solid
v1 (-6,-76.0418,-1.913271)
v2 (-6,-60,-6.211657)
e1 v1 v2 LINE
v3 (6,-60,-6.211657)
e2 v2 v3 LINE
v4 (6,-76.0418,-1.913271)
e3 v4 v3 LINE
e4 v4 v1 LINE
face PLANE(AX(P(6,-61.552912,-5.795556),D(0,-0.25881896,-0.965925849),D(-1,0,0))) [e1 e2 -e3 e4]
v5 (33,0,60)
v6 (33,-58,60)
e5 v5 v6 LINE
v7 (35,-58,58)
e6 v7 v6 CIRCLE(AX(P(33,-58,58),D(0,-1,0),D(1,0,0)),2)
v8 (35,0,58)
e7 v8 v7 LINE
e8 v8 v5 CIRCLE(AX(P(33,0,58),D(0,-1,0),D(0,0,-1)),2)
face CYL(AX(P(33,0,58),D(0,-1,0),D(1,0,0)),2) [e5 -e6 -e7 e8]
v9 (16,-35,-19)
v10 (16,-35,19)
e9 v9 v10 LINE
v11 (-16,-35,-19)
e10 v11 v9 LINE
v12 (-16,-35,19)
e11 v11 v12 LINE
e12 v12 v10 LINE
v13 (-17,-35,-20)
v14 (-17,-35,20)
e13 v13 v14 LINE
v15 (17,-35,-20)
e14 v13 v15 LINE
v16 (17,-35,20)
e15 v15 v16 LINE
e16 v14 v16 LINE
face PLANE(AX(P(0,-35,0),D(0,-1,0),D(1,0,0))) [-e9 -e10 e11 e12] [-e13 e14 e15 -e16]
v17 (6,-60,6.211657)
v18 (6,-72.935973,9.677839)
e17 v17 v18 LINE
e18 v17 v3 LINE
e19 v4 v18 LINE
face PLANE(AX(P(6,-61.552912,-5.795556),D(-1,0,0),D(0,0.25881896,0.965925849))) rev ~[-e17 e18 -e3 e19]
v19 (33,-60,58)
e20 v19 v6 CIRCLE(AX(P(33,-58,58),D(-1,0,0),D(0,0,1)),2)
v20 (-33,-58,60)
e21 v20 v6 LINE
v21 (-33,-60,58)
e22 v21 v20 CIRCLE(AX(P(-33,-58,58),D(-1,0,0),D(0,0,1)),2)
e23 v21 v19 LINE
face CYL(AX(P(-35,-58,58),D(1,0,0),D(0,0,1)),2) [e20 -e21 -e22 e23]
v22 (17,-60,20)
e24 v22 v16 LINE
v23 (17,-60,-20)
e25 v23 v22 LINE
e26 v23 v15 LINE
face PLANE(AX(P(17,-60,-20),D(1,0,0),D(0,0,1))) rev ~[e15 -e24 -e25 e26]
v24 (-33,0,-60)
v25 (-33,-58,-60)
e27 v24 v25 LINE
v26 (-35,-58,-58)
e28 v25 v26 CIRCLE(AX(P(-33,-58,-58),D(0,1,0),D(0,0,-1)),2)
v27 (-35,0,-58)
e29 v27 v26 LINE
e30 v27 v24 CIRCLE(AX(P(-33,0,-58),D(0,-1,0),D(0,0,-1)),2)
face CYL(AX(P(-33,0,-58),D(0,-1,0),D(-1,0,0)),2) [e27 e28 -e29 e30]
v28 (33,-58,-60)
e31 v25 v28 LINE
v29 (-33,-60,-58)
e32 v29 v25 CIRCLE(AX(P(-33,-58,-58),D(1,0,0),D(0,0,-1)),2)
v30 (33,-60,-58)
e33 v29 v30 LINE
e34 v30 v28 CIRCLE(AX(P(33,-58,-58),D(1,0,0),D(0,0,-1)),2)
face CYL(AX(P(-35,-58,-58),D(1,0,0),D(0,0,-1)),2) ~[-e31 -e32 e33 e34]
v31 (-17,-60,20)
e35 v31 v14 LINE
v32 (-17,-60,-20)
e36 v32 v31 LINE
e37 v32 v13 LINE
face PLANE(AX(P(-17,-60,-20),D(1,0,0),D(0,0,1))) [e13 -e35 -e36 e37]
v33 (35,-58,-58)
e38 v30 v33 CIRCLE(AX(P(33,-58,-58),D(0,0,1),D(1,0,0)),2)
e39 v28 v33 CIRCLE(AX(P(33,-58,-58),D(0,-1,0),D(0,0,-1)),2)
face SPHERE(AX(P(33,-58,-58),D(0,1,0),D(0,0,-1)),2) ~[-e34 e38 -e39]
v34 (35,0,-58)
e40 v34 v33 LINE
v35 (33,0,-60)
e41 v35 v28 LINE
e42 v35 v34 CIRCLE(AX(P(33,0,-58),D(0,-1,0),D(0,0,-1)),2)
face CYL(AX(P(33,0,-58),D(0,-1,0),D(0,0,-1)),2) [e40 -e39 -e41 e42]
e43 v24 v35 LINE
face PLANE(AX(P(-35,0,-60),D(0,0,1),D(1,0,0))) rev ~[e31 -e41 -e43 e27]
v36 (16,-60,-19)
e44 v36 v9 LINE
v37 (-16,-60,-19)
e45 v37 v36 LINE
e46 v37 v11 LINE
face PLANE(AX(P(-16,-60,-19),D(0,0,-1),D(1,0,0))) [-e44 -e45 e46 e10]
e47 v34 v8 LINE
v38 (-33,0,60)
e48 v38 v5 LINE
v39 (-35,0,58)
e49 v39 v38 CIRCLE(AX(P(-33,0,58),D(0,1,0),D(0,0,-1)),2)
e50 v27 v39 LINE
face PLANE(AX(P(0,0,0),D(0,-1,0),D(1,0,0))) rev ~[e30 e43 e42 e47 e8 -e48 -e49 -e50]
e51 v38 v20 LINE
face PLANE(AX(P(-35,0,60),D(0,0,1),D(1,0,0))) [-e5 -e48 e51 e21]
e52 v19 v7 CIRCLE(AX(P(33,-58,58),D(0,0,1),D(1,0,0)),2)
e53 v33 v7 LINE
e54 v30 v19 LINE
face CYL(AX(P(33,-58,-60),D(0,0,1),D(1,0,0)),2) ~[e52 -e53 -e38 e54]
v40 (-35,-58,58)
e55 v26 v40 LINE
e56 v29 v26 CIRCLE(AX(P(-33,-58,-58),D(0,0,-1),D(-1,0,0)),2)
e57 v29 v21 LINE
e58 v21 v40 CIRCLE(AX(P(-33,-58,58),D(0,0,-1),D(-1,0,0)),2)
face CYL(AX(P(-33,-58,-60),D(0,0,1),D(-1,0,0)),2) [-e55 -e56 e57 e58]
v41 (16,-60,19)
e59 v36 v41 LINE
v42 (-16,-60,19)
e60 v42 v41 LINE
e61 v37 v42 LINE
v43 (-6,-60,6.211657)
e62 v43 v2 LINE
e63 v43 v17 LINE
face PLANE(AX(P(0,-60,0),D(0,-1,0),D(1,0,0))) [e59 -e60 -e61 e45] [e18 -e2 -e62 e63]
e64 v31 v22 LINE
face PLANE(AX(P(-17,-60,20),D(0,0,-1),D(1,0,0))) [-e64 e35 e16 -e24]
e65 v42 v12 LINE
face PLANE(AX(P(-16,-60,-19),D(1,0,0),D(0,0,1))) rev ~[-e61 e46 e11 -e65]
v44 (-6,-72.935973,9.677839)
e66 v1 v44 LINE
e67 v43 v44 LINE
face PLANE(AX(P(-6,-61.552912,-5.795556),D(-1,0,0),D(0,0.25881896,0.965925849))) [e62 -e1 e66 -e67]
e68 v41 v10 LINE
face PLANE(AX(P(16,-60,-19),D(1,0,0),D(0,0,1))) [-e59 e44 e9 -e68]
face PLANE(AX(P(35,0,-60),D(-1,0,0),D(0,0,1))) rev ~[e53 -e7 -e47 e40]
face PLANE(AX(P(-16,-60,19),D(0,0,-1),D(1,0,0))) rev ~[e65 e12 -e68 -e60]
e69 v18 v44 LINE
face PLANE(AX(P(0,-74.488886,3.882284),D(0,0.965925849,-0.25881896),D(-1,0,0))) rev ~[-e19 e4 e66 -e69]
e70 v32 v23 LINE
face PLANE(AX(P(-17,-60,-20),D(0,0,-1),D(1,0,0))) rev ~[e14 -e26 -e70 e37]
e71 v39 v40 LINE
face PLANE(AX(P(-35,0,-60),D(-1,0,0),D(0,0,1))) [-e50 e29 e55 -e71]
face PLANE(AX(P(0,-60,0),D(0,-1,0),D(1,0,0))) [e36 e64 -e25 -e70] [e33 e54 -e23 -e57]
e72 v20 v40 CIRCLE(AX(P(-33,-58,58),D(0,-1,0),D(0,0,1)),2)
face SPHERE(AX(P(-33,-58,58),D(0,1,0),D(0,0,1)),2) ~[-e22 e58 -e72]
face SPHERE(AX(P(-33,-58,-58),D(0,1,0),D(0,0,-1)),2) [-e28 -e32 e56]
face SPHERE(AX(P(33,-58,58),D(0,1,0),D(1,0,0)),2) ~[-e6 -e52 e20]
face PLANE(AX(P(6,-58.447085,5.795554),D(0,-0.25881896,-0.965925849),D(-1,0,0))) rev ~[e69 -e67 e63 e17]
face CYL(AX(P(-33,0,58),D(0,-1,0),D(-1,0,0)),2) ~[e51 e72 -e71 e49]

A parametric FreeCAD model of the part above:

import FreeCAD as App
import Part
import Sketcher
from FreeCAD import Vector


def edges_at(feature, points):
    """Names of the edges that pass closest to the given points."""
    edges = feature.Shape.Edges
    near = lambda p: min(range(len(edges)), key=lambda i: edges[i].distToShape(Part.Vertex(*p))[0])
    return sorted({f"Edge{near(p) + 1}" for p in points})


def add_polygon(sketch, points):
    """Adds a closed chain of lines whose ends are joined by coincident constraints."""
    first, n = sketch.GeometryCount, len(points)
    for a, b in zip(points, points[1:] + points[:1]):
        sketch.addGeometry(Part.LineSegment(App.Vector(*a, 0), App.Vector(*b, 0)), False)
    for i in range(n):
        sketch.addConstraint(Sketcher.Constraint("Coincident", first + i, 2, first + (i + 1) % n, 1))

doc = App.newDocument("Part")
body = doc.addObject("PartDesign::Body", "Body")

# Sketch on XZ plane
sketch1 = doc.addObject("Sketcher::SketchObject", "Sketch")
body.addObject(sketch1)
sketch1.AttachmentSupport = (doc.XZ_Plane, [""])
sketch1.MapMode = "FlatFace"
add_polygon(sketch1, [(-35, 60), (-35, -60), (35, -60), (35, 60)])  # lines 0-3
sketch1.addConstraint([
    Sketcher.Constraint("Vertical", 0),
    Sketcher.Constraint("Horizontal", 1),
    Sketcher.Constraint("Vertical", 2),
    Sketcher.Constraint("Horizontal", 3),
    Sketcher.Constraint("Symmetric", 0, 2, 2, 2, -1, 1),
    Sketcher.Constraint("DistanceX", 1, 1, 1, 2, 70.0),
    Sketcher.Constraint("DistanceY", 0, 2, 0, 1, 120.0),
])
pad1 = doc.addObject("PartDesign::Pad", "Pad")
body.addObject(pad1)
pad1.Profile = sketch1
pad1.Length = 60
doc.recompute()

fillet = doc.addObject("PartDesign::Fillet", "Fillet")
body.addObject(fillet)
fillet.Base = (pad1, edges_at(pad1, [
    (35, -30, 60),
    (35, -30, -60),
    (-35, -30, 60),
    (-35, -30, -60),
    (0, -60, -60),
    (35, -60, 0),
    (0, -60, 60),
    (-35, -60, 0),
]))
fillet.Radius = 2

# Sketch on XZ plane
sketch2 = doc.addObject("Sketcher::SketchObject", "Sketch001")
body.addObject(sketch2)
sketch2.AttachmentSupport = (doc.XZ_Plane, [""])
sketch2.MapMode = "FlatFace"
sketch2.AttachmentOffset = App.Placement(Vector(0, 0, 60), App.Rotation())
add_polygon(sketch2, [(-17, 20), (-17, -20), (17, -20), (17, 20)])  # lines 0-3
add_polygon(sketch2, [(16, -19), (-16, -19), (-16, 19), (16, 19)])  # lines 4-7
sketch2.addConstraint([
    Sketcher.Constraint("Vertical", 0),
    Sketcher.Constraint("Horizontal", 1),
    Sketcher.Constraint("Vertical", 2),
    Sketcher.Constraint("Horizontal", 3),
    Sketcher.Constraint("Horizontal", 4),
    Sketcher.Constraint("Vertical", 5),
    Sketcher.Constraint("Horizontal", 6),
    Sketcher.Constraint("Vertical", 7),
    Sketcher.Constraint("Symmetric", 0, 2, 2, 2, -1, 1),
    Sketcher.Constraint("Symmetric", 4, 2, 6, 2, -1, 1),
    Sketcher.Constraint("DistanceX", 1, 1, 1, 2, 34.0),
    Sketcher.Constraint("DistanceX", 4, 2, 4, 1, 32.0),
    Sketcher.Constraint("DistanceY", 0, 2, 0, 1, 40.0),
    Sketcher.Constraint("DistanceY", 5, 1, 5, 2, 38.0),
])
pocket1 = doc.addObject("PartDesign::Pocket", "Pocket")
body.addObject(pocket1)
pocket1.Profile = sketch2
pocket1.Length = 25

# Sketch on an angled plane
sketch3 = doc.addObject("Sketcher::SketchObject", "Sketch002")
body.addObject(sketch3)
sketch3.Placement = App.Placement(Vector(0, -55.980762, 15), App.Rotation(Vector(-1, 0, 0), Vector(0, 0.25881896, 0.965925849), Vector(0, 0.965925849, -0.25881896), "ZXY"))
add_polygon(sketch3, [(-6, -10), (-6, -22), (6, -22), (6, -10)])  # lines 0-3
sketch3.addConstraint([
    Sketcher.Constraint("Vertical", 0),
    Sketcher.Constraint("Horizontal", 1),
    Sketcher.Constraint("Vertical", 2),
    Sketcher.Constraint("Horizontal", 3),
    Sketcher.Constraint("Equal", 3, 0),
    Sketcher.Constraint("DistanceX", 1, 1, 1, 2, 12.0),
    Sketcher.Constraint("DistanceX", 0, 2, -1, 1, 6.0),
    Sketcher.Constraint("DistanceY", 0, 2, -1, 1, 21.529143),
])
pad2 = doc.addObject("PartDesign::Pad", "Pad001")
body.addObject(pad2)
pad2.Profile = sketch3
pad2.Length = 30
pad2.Midplane = True

doc.recompute()
